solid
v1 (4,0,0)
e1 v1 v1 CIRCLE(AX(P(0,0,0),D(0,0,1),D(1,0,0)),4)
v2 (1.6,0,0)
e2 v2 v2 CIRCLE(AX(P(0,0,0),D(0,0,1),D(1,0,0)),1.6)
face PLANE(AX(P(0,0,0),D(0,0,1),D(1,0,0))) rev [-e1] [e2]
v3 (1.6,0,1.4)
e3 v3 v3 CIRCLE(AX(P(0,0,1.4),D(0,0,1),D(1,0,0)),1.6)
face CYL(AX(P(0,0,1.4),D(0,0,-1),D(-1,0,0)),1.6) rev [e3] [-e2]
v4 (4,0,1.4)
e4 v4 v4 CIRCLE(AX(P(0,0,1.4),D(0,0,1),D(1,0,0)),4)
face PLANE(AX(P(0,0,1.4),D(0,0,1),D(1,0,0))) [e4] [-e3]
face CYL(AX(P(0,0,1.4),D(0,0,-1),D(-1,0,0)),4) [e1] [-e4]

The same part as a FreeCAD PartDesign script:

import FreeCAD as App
import Part
import Sketcher

V = App.Vector
Q = App.Units.Quantity

doc = App.newDocument("Part")
params = doc.addObject("Spreadsheet::Sheet", "Params")
for row, (alias, value) in enumerate([
    ("sketch1_diameter", "8 mm"),
    ("sketch1_diameter2", "3.2 mm"),
    ("pad1_length", "1.4 mm"),
], start=1):
    params.set(f"A{row}", alias)
    params.set(f"B{row}", "=" + value)
    params.setAlias(f"B{row}", alias)

body = doc.addObject("PartDesign::Body", "Body")

sketch1 = body.newObject("Sketcher::SketchObject", "Sketch")
sketch1.AttachmentSupport = (doc.getObject("XY_Plane"), [""])
sketch1.MapMode = "FlatFace"
sketch1.addGeometry(Part.Circle(V(0, 0, 0), V(0, 0, 1), 4), False)
sketch1.addGeometry(Part.Circle(V(0, 0, 0), V(0, 0, 1), 1.6), False)
sketch1.addConstraint(Sketcher.Constraint("Coincident", 0, 3, -1, 1))
sketch1.addConstraint(Sketcher.Constraint("Coincident", 1, 3, -1, 1))
sketch1.addConstraint(Sketcher.Constraint("Diameter", 0, Q("8 mm")))
sketch1.addConstraint(Sketcher.Constraint("Diameter", 1, Q("3.2 mm")))
sketch1.setExpression("Constraints[2]", "Params.sketch1_diameter")
sketch1.setExpression("Constraints[3]", "Params.sketch1_diameter2")
pad1 = body.newObject("PartDesign::Pad", "Pad")
pad1.Profile = sketch1
pad1.setExpression("Length", "Params.pad1_length")

doc.recompute()
